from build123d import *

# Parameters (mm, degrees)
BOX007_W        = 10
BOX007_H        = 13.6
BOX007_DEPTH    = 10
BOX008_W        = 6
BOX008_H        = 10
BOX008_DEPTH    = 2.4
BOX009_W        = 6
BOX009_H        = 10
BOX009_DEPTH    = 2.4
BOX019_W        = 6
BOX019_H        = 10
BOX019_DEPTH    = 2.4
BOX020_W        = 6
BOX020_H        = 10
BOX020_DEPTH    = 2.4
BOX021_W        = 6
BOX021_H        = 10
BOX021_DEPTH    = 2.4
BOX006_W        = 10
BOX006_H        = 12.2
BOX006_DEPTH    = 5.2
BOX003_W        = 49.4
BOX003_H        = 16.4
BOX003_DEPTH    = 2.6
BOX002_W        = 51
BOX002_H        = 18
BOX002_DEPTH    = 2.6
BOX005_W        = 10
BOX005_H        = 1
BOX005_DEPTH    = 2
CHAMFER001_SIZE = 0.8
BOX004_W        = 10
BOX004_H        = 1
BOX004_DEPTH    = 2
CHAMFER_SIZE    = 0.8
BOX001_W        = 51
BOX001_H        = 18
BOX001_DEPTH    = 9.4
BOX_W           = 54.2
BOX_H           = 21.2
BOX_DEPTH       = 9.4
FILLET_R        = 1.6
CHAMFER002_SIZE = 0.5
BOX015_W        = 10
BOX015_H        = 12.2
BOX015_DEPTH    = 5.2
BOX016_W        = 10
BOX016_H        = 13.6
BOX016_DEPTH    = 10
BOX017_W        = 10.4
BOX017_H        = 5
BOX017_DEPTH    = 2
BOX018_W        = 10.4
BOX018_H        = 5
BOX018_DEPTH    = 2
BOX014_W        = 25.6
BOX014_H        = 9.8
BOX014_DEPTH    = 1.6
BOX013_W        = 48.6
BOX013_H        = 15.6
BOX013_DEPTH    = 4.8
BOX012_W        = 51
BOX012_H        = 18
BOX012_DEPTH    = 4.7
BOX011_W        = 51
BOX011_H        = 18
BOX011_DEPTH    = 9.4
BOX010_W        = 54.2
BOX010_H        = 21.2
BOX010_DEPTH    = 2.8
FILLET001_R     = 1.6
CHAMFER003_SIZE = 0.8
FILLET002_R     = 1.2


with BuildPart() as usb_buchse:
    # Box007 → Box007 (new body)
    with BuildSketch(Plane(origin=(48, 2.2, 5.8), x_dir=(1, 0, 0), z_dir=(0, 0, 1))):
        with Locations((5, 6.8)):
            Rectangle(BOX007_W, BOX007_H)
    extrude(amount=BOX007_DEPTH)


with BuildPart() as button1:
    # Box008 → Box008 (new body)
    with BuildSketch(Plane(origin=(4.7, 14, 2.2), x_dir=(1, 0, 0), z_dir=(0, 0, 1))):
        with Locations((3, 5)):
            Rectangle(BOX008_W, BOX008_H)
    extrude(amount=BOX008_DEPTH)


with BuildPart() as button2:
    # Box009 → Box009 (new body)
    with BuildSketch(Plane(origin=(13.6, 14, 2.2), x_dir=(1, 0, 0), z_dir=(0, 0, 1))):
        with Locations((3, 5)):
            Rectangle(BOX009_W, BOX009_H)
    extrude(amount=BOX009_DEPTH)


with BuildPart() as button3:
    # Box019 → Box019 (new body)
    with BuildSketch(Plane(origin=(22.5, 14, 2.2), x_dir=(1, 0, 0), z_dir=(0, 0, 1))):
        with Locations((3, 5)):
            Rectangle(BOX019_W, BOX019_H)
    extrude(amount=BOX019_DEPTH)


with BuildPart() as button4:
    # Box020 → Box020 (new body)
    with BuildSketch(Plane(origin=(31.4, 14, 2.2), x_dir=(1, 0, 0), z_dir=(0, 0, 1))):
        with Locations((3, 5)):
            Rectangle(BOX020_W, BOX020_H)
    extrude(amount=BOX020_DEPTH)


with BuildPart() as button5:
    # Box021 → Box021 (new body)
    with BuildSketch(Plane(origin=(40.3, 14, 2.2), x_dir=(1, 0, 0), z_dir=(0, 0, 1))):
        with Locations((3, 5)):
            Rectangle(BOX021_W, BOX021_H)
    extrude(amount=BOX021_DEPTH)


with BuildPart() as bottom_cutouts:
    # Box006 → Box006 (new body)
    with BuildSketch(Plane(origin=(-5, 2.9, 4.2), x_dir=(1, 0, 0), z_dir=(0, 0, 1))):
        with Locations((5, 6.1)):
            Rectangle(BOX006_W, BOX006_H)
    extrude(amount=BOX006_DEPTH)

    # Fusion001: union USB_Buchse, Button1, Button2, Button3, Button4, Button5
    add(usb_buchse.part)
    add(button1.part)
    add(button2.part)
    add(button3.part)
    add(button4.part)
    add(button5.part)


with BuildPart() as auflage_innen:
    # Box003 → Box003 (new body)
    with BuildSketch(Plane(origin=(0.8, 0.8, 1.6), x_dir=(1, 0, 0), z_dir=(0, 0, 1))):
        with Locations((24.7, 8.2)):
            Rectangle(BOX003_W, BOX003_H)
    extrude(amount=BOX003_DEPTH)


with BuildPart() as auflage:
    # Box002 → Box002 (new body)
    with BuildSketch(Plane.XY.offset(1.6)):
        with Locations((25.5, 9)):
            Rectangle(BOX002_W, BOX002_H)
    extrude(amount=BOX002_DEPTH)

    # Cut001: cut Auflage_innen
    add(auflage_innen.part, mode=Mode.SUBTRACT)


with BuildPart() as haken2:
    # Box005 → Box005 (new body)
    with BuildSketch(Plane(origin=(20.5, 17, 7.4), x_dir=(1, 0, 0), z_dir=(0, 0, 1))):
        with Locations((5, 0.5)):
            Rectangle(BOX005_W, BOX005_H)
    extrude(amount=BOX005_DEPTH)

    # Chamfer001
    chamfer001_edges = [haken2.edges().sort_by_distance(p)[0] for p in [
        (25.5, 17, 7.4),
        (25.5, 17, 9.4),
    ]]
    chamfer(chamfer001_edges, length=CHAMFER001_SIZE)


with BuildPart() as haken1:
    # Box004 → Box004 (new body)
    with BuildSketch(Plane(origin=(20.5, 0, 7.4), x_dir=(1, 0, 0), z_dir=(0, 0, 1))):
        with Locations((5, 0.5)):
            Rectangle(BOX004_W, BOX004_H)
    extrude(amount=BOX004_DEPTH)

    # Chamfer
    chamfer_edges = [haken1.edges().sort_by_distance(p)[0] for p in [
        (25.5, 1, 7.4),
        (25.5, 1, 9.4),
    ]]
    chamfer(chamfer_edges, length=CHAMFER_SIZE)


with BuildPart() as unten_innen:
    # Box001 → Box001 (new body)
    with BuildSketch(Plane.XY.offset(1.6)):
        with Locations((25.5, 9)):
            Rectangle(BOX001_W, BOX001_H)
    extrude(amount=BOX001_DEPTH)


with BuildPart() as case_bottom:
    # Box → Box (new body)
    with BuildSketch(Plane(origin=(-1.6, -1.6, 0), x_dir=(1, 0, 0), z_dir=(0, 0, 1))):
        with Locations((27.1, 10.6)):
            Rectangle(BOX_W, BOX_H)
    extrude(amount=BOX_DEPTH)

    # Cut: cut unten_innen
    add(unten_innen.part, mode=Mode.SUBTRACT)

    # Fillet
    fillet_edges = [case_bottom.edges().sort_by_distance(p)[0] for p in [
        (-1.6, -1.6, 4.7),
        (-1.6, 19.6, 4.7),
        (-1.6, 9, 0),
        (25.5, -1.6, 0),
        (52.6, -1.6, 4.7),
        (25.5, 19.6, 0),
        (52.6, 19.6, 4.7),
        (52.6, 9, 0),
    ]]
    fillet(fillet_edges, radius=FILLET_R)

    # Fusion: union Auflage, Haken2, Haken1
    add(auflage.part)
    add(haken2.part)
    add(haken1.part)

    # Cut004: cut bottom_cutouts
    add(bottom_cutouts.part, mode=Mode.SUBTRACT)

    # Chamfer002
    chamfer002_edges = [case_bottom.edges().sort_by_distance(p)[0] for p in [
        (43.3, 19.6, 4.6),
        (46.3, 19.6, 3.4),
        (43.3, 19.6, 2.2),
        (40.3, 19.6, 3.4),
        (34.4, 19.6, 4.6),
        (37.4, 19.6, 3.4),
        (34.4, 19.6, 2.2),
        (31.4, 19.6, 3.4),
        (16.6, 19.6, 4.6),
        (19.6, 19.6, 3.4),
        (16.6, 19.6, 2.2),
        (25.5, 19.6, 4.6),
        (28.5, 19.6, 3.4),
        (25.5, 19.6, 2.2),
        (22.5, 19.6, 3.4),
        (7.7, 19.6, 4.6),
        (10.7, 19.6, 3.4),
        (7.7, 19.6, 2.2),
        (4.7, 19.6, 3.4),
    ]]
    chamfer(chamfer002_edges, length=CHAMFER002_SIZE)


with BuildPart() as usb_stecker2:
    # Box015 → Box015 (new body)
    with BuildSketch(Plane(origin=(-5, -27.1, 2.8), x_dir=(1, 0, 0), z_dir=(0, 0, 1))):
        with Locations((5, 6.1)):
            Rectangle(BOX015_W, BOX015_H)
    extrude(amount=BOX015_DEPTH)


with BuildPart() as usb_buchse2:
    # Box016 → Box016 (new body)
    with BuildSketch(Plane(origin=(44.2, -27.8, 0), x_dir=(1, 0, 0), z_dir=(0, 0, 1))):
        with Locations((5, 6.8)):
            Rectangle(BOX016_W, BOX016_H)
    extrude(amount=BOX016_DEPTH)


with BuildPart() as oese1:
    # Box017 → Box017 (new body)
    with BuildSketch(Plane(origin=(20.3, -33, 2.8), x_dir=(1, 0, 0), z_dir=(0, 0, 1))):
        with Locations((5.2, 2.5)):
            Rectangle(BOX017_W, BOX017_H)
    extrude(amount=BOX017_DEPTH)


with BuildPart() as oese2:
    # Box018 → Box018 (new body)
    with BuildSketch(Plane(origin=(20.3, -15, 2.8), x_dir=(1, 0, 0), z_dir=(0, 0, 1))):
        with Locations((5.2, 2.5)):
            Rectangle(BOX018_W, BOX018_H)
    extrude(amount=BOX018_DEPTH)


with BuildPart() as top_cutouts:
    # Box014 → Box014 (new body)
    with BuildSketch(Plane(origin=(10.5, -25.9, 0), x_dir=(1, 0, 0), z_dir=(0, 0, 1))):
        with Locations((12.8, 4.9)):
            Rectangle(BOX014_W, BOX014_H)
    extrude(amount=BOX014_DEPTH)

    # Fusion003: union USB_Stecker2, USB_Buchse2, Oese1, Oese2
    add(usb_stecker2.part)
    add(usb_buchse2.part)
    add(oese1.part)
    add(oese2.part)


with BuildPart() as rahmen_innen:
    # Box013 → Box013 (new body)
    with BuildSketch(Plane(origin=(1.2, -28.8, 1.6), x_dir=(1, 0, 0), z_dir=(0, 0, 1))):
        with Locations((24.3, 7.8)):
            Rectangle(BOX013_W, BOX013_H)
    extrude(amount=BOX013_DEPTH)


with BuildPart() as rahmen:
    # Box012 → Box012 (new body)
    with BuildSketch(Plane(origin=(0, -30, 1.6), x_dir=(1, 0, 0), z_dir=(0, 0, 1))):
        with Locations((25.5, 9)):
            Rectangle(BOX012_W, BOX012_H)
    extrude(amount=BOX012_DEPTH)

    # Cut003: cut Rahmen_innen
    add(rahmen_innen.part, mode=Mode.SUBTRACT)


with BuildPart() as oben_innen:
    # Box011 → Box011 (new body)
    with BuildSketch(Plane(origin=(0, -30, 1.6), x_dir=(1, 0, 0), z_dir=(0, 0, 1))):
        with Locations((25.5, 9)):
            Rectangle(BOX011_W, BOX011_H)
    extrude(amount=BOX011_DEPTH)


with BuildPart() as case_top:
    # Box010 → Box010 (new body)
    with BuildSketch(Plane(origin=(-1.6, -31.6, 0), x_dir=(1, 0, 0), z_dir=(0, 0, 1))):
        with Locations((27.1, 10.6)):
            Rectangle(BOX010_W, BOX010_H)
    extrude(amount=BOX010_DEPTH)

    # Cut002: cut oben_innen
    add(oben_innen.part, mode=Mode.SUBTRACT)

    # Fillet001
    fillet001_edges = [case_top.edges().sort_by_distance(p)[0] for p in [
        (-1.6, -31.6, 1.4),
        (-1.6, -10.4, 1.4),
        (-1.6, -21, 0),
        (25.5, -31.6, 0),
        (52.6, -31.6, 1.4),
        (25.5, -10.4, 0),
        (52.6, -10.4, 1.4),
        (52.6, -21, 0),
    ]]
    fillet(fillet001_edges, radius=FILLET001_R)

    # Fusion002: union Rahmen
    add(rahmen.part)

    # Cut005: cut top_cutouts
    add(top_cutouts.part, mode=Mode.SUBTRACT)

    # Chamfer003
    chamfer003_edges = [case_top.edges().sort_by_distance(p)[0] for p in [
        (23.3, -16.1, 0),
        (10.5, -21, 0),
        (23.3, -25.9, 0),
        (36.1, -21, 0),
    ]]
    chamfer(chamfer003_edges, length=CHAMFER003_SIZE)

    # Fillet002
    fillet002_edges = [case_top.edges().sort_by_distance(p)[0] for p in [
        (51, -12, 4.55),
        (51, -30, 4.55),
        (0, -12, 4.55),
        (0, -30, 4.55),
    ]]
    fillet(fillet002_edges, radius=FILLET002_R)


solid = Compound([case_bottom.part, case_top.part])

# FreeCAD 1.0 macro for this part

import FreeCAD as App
import Part
import Sketcher
from FreeCAD import Vector


def edges_at(feature, points):
    """Names of the edges that pass closest to the given points."""
    edges = feature.Shape.Edges
    near = lambda p: min(range(len(edges)), key=lambda i: edges[i].distToShape(Part.Vertex(*p))[0])
    return sorted({f"Edge{near(p) + 1}" for p in points})

doc = App.newDocument("Part")
body = doc.addObject("PartDesign::Body", "Body")

sketch1 = body.newObject("Sketcher::SketchObject", "Sketch")
sketch1.AttachmentSupport = (doc.getObject("XY_Plane"), [""])
sketch1.MapMode = "FlatFace"
sketch1.AttachmentOffset = App.Placement(Vector(0, 0, 5.8), App.Rotation())
sketch1.addGeometry([
    Part.LineSegment(Vector(48, 15.8, 0), Vector(48, 2.2, 0)),
    Part.LineSegment(Vector(48, 2.2, 0), Vector(58, 2.2, 0)),
    Part.LineSegment(Vector(58, 2.2, 0), Vector(58, 15.8, 0)),
    Part.LineSegment(Vector(58, 15.8, 0), Vector(48, 15.8, 0)),
], False)
sketch1.addConstraint([
    Sketcher.Constraint("Coincident", 0, 2, 1, 1),
    Sketcher.Constraint("Coincident", 1, 2, 2, 1),
    Sketcher.Constraint("Coincident", 2, 2, 3, 1),
    Sketcher.Constraint("Coincident", 3, 2, 0, 1),
    Sketcher.Constraint("Vertical", 0),
    Sketcher.Constraint("Horizontal", 1),
    Sketcher.Constraint("Vertical", 2),
    Sketcher.Constraint("Horizontal", 3),
    Sketcher.Constraint("DistanceX", 1, 1, 1, 2, 10.0),
    Sketcher.Constraint("DistanceY", 0, 2, 0, 1, 13.6),
    Sketcher.Constraint("DistanceX", -1, 1, 0, 2, 48.0),
    Sketcher.Constraint("DistanceY", -1, 1, 0, 2, 2.2),
])
pad1 = body.newObject("PartDesign::Pad", "Pad")
pad1.Profile = sketch1
pad1.Length = 10
body2 = doc.addObject("PartDesign::Body", "Body001")

sketch2 = body2.newObject("Sketcher::SketchObject", "Sketch001")
sketch2.AttachmentSupport = (doc.getObject("XY_Plane001"), [""])
sketch2.MapMode = "FlatFace"
sketch2.AttachmentOffset = App.Placement(Vector(0, 0, 2.2), App.Rotation())
sketch2.addGeometry([
    Part.LineSegment(Vector(4.7, 24, 0), Vector(4.7, 14, 0)),
    Part.LineSegment(Vector(4.7, 14, 0), Vector(10.7, 14, 0)),
    Part.LineSegment(Vector(10.7, 14, 0), Vector(10.7, 24, 0)),
    Part.LineSegment(Vector(10.7, 24, 0), Vector(4.7, 24, 0)),
], False)
sketch2.addConstraint([
    Sketcher.Constraint("Coincident", 0, 2, 1, 1),
    Sketcher.Constraint("Coincident", 1, 2, 2, 1),
    Sketcher.Constraint("Coincident", 2, 2, 3, 1),
    Sketcher.Constraint("Coincident", 3, 2, 0, 1),
    Sketcher.Constraint("Vertical", 0),
    Sketcher.Constraint("Horizontal", 1),
    Sketcher.Constraint("Vertical", 2),
    Sketcher.Constraint("Horizontal", 3),
    Sketcher.Constraint("DistanceX", 1, 1, 1, 2, 6.0),
    Sketcher.Constraint("DistanceY", 0, 2, 0, 1, 10.0),
    Sketcher.Constraint("DistanceY", -1, 1, 0, 2, 14.0),
    Sketcher.Constraint("DistanceX", -1, 1, 0, 2, 4.7),
])
pad2 = body2.newObject("PartDesign::Pad", "Pad001")
pad2.Profile = sketch2
pad2.Length = 2.4
body3 = doc.addObject("PartDesign::Body", "Body002")

sketch3 = body3.newObject("Sketcher::SketchObject", "Sketch002")
sketch3.AttachmentSupport = (doc.getObject("XY_Plane002"), [""])
sketch3.MapMode = "FlatFace"
sketch3.AttachmentOffset = App.Placement(Vector(0, 0, 2.2), App.Rotation())
sketch3.addGeometry([
    Part.LineSegment(Vector(13.6, 24, 0), Vector(13.6, 14, 0)),
    Part.LineSegment(Vector(13.6, 14, 0), Vector(19.6, 14, 0)),
    Part.LineSegment(Vector(19.6, 14, 0), Vector(19.6, 24, 0)),
    Part.LineSegment(Vector(19.6, 24, 0), Vector(13.6, 24, 0)),
], False)
sketch3.addConstraint([
    Sketcher.Constraint("Coincident", 0, 2, 1, 1),
    Sketcher.Constraint("Coincident", 1, 2, 2, 1),
    Sketcher.Constraint("Coincident", 2, 2, 3, 1),
    Sketcher.Constraint("Coincident", 3, 2, 0, 1),
    Sketcher.Constraint("Vertical", 0),
    Sketcher.Constraint("Horizontal", 1),
    Sketcher.Constraint("Vertical", 2),
    Sketcher.Constraint("Horizontal", 3),
    Sketcher.Constraint("DistanceX", 1, 1, 1, 2, 6.0),
    Sketcher.Constraint("DistanceY", 0, 2, 0, 1, 10.0),
    Sketcher.Constraint("DistanceY", -1, 1, 0, 2, 14.0),
    Sketcher.Constraint("DistanceX", -1, 1, 0, 2, 13.6),
])
pad3 = body3.newObject("PartDesign::Pad", "Pad002")
pad3.Profile = sketch3
pad3.Length = 2.4
body4 = doc.addObject("PartDesign::Body", "Body003")

sketch4 = body4.newObject("Sketcher::SketchObject", "Sketch003")
sketch4.AttachmentSupport = (doc.getObject("XY_Plane003"), [""])
sketch4.MapMode = "FlatFace"
sketch4.AttachmentOffset = App.Placement(Vector(0, 0, 2.2), App.Rotation())
sketch4.addGeometry([
    Part.LineSegment(Vector(22.5, 24, 0), Vector(22.5, 14, 0)),
    Part.LineSegment(Vector(22.5, 14, 0), Vector(28.5, 14, 0)),
    Part.LineSegment(Vector(28.5, 14, 0), Vector(28.5, 24, 0)),
    Part.LineSegment(Vector(28.5, 24, 0), Vector(22.5, 24, 0)),
], False)
sketch4.addConstraint([
    Sketcher.Constraint("Coincident", 0, 2, 1, 1),
    Sketcher.Constraint("Coincident", 1, 2, 2, 1),
    Sketcher.Constraint("Coincident", 2, 2, 3, 1),
    Sketcher.Constraint("Coincident", 3, 2, 0, 1),
    Sketcher.Constraint("Vertical", 0),
    Sketcher.Constraint("Horizontal", 1),
    Sketcher.Constraint("Vertical", 2),
    Sketcher.Constraint("Horizontal", 3),
    Sketcher.Constraint("DistanceX", 1, 1, 1, 2, 6.0),
    Sketcher.Constraint("DistanceY", 0, 2, 0, 1, 10.0),
    Sketcher.Constraint("DistanceY", -1, 1, 0, 2, 14.0),
    Sketcher.Constraint("DistanceX", -1, 1, 0, 2, 22.5),
])
pad4 = body4.newObject("PartDesign::Pad", "Pad003")
pad4.Profile = sketch4
pad4.Length = 2.4
body5 = doc.addObject("PartDesign::Body", "Body004")

sketch5 = body5.newObject("Sketcher::SketchObject", "Sketch004")
sketch5.AttachmentSupport = (doc.getObject("XY_Plane004"), [""])
sketch5.MapMode = "FlatFace"
sketch5.AttachmentOffset = App.Placement(Vector(0, 0, 2.2), App.Rotation())
sketch5.addGeometry([
    Part.LineSegment(Vector(31.4, 24, 0), Vector(31.4, 14, 0)),
    Part.LineSegment(Vector(31.4, 14, 0), Vector(37.4, 14, 0)),
    Part.LineSegment(Vector(37.4, 14, 0), Vector(37.4, 24, 0)),
    Part.LineSegment(Vector(37.4, 24, 0), Vector(31.4, 24, 0)),
], False)
sketch5.addConstraint([
    Sketcher.Constraint("Coincident", 0, 2, 1, 1),
    Sketcher.Constraint("Coincident", 1, 2, 2, 1),
    Sketcher.Constraint("Coincident", 2, 2, 3, 1),
    Sketcher.Constraint("Coincident", 3, 2, 0, 1),
    Sketcher.Constraint("Vertical", 0),
    Sketcher.Constraint("Horizontal", 1),
    Sketcher.Constraint("Vertical", 2),
    Sketcher.Constraint("Horizontal", 3),
    Sketcher.Constraint("DistanceX", 1, 1, 1, 2, 6.0),
    Sketcher.Constraint("DistanceY", 0, 2, 0, 1, 10.0),
    Sketcher.Constraint("DistanceY", -1, 1, 0, 2, 14.0),
    Sketcher.Constraint("DistanceX", -1, 1, 0, 2, 31.4),
])
pad5 = body5.newObject("PartDesign::Pad", "Pad004")
pad5.Profile = sketch5
pad5.Length = 2.4
body6 = doc.addObject("PartDesign::Body", "Body005")

sketch6 = body6.newObject("Sketcher::SketchObject", "Sketch005")
sketch6.AttachmentSupport = (doc.getObject("XY_Plane005"), [""])
sketch6.MapMode = "FlatFace"
sketch6.AttachmentOffset = App.Placement(Vector(0, 0, 2.2), App.Rotation())
sketch6.addGeometry([
    Part.LineSegment(Vector(40.3, 24, 0), Vector(40.3, 14, 0)),
    Part.LineSegment(Vector(40.3, 14, 0), Vector(46.3, 14, 0)),
    Part.LineSegment(Vector(46.3, 14, 0), Vector(46.3, 24, 0)),
    Part.LineSegment(Vector(46.3, 24, 0), Vector(40.3, 24, 0)),
], False)
sketch6.addConstraint([
    Sketcher.Constraint("Coincident", 0, 2, 1, 1),
    Sketcher.Constraint("Coincident", 1, 2, 2, 1),
    Sketcher.Constraint("Coincident", 2, 2, 3, 1),
    Sketcher.Constraint("Coincident", 3, 2, 0, 1),
    Sketcher.Constraint("Vertical", 0),
    Sketcher.Constraint("Horizontal", 1),
    Sketcher.Constraint("Vertical", 2),
    Sketcher.Constraint("Horizontal", 3),
    Sketcher.Constraint("DistanceX", 1, 1, 1, 2, 6.0),
    Sketcher.Constraint("DistanceY", 0, 2, 0, 1, 10.0),
    Sketcher.Constraint("DistanceY", -1, 1, 0, 2, 14.0),
    Sketcher.Constraint("DistanceX", -1, 1, 0, 2, 40.3),
])
pad6 = body6.newObject("PartDesign::Pad", "Pad005")
pad6.Profile = sketch6
pad6.Length = 2.4
body7 = doc.addObject("PartDesign::Body", "Body006")
body7.AllowCompound = True

sketch7 = body7.newObject("Sketcher::SketchObject", "Sketch006")
sketch7.AttachmentSupport = (doc.getObject("XY_Plane006"), [""])
sketch7.MapMode = "FlatFace"
sketch7.AttachmentOffset = App.Placement(Vector(0, 0, 4.2), App.Rotation())
sketch7.addGeometry([
    Part.LineSegment(Vector(-5, 15.1, 0), Vector(-5, 2.9, 0)),
    Part.LineSegment(Vector(-5, 2.9, 0), Vector(5, 2.9, 0)),
    Part.LineSegment(Vector(5, 2.9, 0), Vector(5, 15.1, 0)),
    Part.LineSegment(Vector(5, 15.1, 0), Vector(-5, 15.1, 0)),
], False)
sketch7.addConstraint([
    Sketcher.Constraint("Coincident", 0, 2, 1, 1),
    Sketcher.Constraint("Coincident", 1, 2, 2, 1),
    Sketcher.Constraint("Coincident", 2, 2, 3, 1),
    Sketcher.Constraint("Coincident", 3, 2, 0, 1),
    Sketcher.Constraint("Vertical", 0),
    Sketcher.Constraint("Horizontal", 1),
    Sketcher.Constraint("Vertical", 2),
    Sketcher.Constraint("Horizontal", 3),
    Sketcher.Constraint("DistanceX", 1, 1, 1, 2, 10.0),
    Sketcher.Constraint("DistanceY", 0, 2, 0, 1, 12.2),
    Sketcher.Constraint("DistanceX", 0, 2, -1, 1, 5.0),
    Sketcher.Constraint("DistanceY", -1, 1, 0, 2, 2.9),
])
pad7 = body7.newObject("PartDesign::Pad", "Pad006")
pad7.Profile = sketch7
pad7.Length = 5.2
doc.recompute()

boolean = body7.newObject("PartDesign::Boolean", "Boolean")
boolean.Type = "Fuse"
boolean.addObjects([body])
doc.recompute()

boolean2 = body7.newObject("PartDesign::Boolean", "Boolean001")
boolean2.Type = "Fuse"
boolean2.addObjects([body2])
doc.recompute()

boolean3 = body7.newObject("PartDesign::Boolean", "Boolean002")
boolean3.Type = "Fuse"
boolean3.addObjects([body3])
doc.recompute()

boolean4 = body7.newObject("PartDesign::Boolean", "Boolean003")
boolean4.Type = "Fuse"
boolean4.addObjects([body4])
doc.recompute()

boolean5 = body7.newObject("PartDesign::Boolean", "Boolean004")
boolean5.Type = "Fuse"
boolean5.addObjects([body5])
doc.recompute()

boolean6 = body7.newObject("PartDesign::Boolean", "Boolean005")
boolean6.Type = "Fuse"
boolean6.addObjects([body6])
body8 = doc.addObject("PartDesign::Body", "Body007")

sketch8 = body8.newObject("Sketcher::SketchObject", "Sketch007")
sketch8.AttachmentSupport = (doc.getObject("XY_Plane007"), [""])
sketch8.MapMode = "FlatFace"
sketch8.AttachmentOffset = App.Placement(Vector(0, 0, 1.6), App.Rotation())
sketch8.addGeometry([
    Part.LineSegment(Vector(0.8, 17.2, 0), Vector(0.8, 0.8, 0)),
    Part.LineSegment(Vector(0.8, 0.8, 0), Vector(50.2, 0.8, 0)),
    Part.LineSegment(Vector(50.2, 0.8, 0), Vector(50.2, 17.2, 0)),
    Part.LineSegment(Vector(50.2, 17.2, 0), Vector(0.8, 17.2, 0)),
], False)
sketch8.addConstraint([
    Sketcher.Constraint("Coincident", 0, 2, 1, 1),
    Sketcher.Constraint("Coincident", 1, 2, 2, 1),
    Sketcher.Constraint("Coincident", 2, 2, 3, 1),
    Sketcher.Constraint("Coincident", 3, 2, 0, 1),
    Sketcher.Constraint("Vertical", 0),
    Sketcher.Constraint("Horizontal", 1),
    Sketcher.Constraint("Vertical", 2),
    Sketcher.Constraint("Horizontal", 3),
    Sketcher.Constraint("DistanceX", 1, 1, 1, 2, 49.4),
    Sketcher.Constraint("DistanceY", 0, 2, 0, 1, 16.4),
    Sketcher.Constraint("DistanceX", -1, 1, 0, 2, 0.8),
    Sketcher.Constraint("DistanceY", -1, 1, 0, 2, 0.8),
])
pad8 = body8.newObject("PartDesign::Pad", "Pad007")
pad8.Profile = sketch8
pad8.Length = 2.6
body9 = doc.addObject("PartDesign::Body", "Body008")

sketch9 = body9.newObject("Sketcher::SketchObject", "Sketch008")
sketch9.AttachmentSupport = (doc.getObject("XY_Plane008"), [""])
sketch9.MapMode = "FlatFace"
sketch9.AttachmentOffset = App.Placement(Vector(0, 0, 1.6), App.Rotation())
sketch9.addGeometry([
    Part.LineSegment(Vector(0, 18, 0), Vector(0, 0, 0)),
    Part.LineSegment(Vector(0, 0, 0), Vector(51, 0, 0)),
    Part.LineSegment(Vector(51, 0, 0), Vector(51, 18, 0)),
    Part.LineSegment(Vector(51, 18, 0), Vector(0, 18, 0)),
], False)
sketch9.addConstraint([
    Sketcher.Constraint("Coincident", 0, 2, 1, 1),
    Sketcher.Constraint("Coincident", 1, 2, 2, 1),
    Sketcher.Constraint("Coincident", 2, 2, 3, 1),
    Sketcher.Constraint("Coincident", 3, 2, 0, 1),
    Sketcher.Constraint("Vertical", 0),
    Sketcher.Constraint("Horizontal", 1),
    Sketcher.Constraint("Vertical", 2),
    Sketcher.Constraint("Horizontal", 3),
    Sketcher.Constraint("Coincident", 0, 2, -1, 1),
    Sketcher.Constraint("DistanceX", 1, 1, 1, 2, 51.0),
    Sketcher.Constraint("DistanceY", 0, 2, 0, 1, 18.0),
])
pad9 = body9.newObject("PartDesign::Pad", "Pad008")
pad9.Profile = sketch9
pad9.Length = 2.6
doc.recompute()

boolean7 = body9.newObject("PartDesign::Boolean", "Boolean006")
boolean7.Type = "Cut"
boolean7.addObjects([body8])
body10 = doc.addObject("PartDesign::Body", "Body009")

sketch10 = body10.newObject("Sketcher::SketchObject", "Sketch009")
sketch10.AttachmentSupport = (doc.getObject("XY_Plane009"), [""])
sketch10.MapMode = "FlatFace"
sketch10.AttachmentOffset = App.Placement(Vector(0, 0, 7.4), App.Rotation())
sketch10.addGeometry([
    Part.LineSegment(Vector(20.5, 18, 0), Vector(20.5, 17, 0)),
    Part.LineSegment(Vector(20.5, 17, 0), Vector(30.5, 17, 0)),
    Part.LineSegment(Vector(30.5, 17, 0), Vector(30.5, 18, 0)),
    Part.LineSegment(Vector(30.5, 18, 0), Vector(20.5, 18, 0)),
], False)
sketch10.addConstraint([
    Sketcher.Constraint("Coincident", 0, 2, 1, 1),
    Sketcher.Constraint("Coincident", 1, 2, 2, 1),
    Sketcher.Constraint("Coincident", 2, 2, 3, 1),
    Sketcher.Constraint("Coincident", 3, 2, 0, 1),
    Sketcher.Constraint("Vertical", 0),
    Sketcher.Constraint("Horizontal", 1),
    Sketcher.Constraint("Vertical", 2),
    Sketcher.Constraint("Horizontal", 3),
    Sketcher.Constraint("DistanceX", 1, 1, 1, 2, 10.0),
    Sketcher.Constraint("DistanceY", 0, 2, 0, 1, 1.0),
    Sketcher.Constraint("DistanceY", -1, 1, 0, 2, 17.0),
    Sketcher.Constraint("DistanceX", -1, 1, 0, 2, 20.5),
])
pad10 = body10.newObject("PartDesign::Pad", "Pad009")
pad10.Profile = sketch10
pad10.Length = 2
doc.recompute()

chamfer = body10.newObject("PartDesign::Chamfer", "Chamfer")
chamfer.Base = (pad10, edges_at(pad10, [(25.5, 17, 7.4), (25.5, 17, 9.4)]))
chamfer.Size = 0.8
body11 = doc.addObject("PartDesign::Body", "Body010")

sketch11 = body11.newObject("Sketcher::SketchObject", "Sketch010")
sketch11.AttachmentSupport = (doc.getObject("XY_Plane010"), [""])
sketch11.MapMode = "FlatFace"
sketch11.AttachmentOffset = App.Placement(Vector(0, 0, 7.4), App.Rotation())
sketch11.addGeometry([
    Part.LineSegment(Vector(20.5, 1, 0), Vector(20.5, 0, 0)),
    Part.LineSegment(Vector(20.5, 0, 0), Vector(30.5, 0, 0)),
    Part.LineSegment(Vector(30.5, 0, 0), Vector(30.5, 1, 0)),
    Part.LineSegment(Vector(30.5, 1, 0), Vector(20.5, 1, 0)),
], False)
sketch11.addConstraint([
    Sketcher.Constraint("Coincident", 0, 2, 1, 1),
    Sketcher.Constraint("Coincident", 1, 2, 2, 1),
    Sketcher.Constraint("Coincident", 2, 2, 3, 1),
    Sketcher.Constraint("Coincident", 3, 2, 0, 1),
    Sketcher.Constraint("Vertical", 0),
    Sketcher.Constraint("Horizontal", 1),
    Sketcher.Constraint("Vertical", 2),
    Sketcher.Constraint("Horizontal", 3),
    Sketcher.Constraint("PointOnObject", 0, 2, -1),
    Sketcher.Constraint("DistanceX", 1, 1, 1, 2, 10.0),
    Sketcher.Constraint("DistanceY", 0, 2, 0, 1, 1.0),
    Sketcher.Constraint("DistanceX", -1, 1, 0, 2, 20.5),
])
pad11 = body11.newObject("PartDesign::Pad", "Pad010")
pad11.Profile = sketch11
pad11.Length = 2
doc.recompute()

chamfer2 = body11.newObject("PartDesign::Chamfer", "Chamfer001")
chamfer2.Base = (pad11, edges_at(pad11, [(25.5, 1, 7.4), (25.5, 1, 9.4)]))
chamfer2.Size = 0.8
body12 = doc.addObject("PartDesign::Body", "Body011")

sketch12 = body12.newObject("Sketcher::SketchObject", "Sketch011")
sketch12.AttachmentSupport = (doc.getObject("XY_Plane011"), [""])
sketch12.MapMode = "FlatFace"
sketch12.AttachmentOffset = App.Placement(Vector(0, 0, 1.6), App.Rotation())
sketch12.addGeometry([
    Part.LineSegment(Vector(0, 18, 0), Vector(0, 0, 0)),
    Part.LineSegment(Vector(0, 0, 0), Vector(51, 0, 0)),
    Part.LineSegment(Vector(51, 0, 0), Vector(51, 18, 0)),
    Part.LineSegment(Vector(51, 18, 0), Vector(0, 18, 0)),
], False)
sketch12.addConstraint([
    Sketcher.Constraint("Coincident", 0, 2, 1, 1),
    Sketcher.Constraint("Coincident", 1, 2, 2, 1),
    Sketcher.Constraint("Coincident", 2, 2, 3, 1),
    Sketcher.Constraint("Coincident", 3, 2, 0, 1),
    Sketcher.Constraint("Vertical", 0),
    Sketcher.Constraint("Horizontal", 1),
    Sketcher.Constraint("Vertical", 2),
    Sketcher.Constraint("Horizontal", 3),
    Sketcher.Constraint("Coincident", 0, 2, -1, 1),
    Sketcher.Constraint("DistanceX", 1, 1, 1, 2, 51.0),
    Sketcher.Constraint("DistanceY", 0, 2, 0, 1, 18.0),
])
pad12 = body12.newObject("PartDesign::Pad", "Pad011")
pad12.Profile = sketch12
pad12.Length = 9.4
body13 = doc.addObject("PartDesign::Body", "Body012")

sketch13 = body13.newObject("Sketcher::SketchObject", "Sketch012")
sketch13.AttachmentSupport = (doc.getObject("XY_Plane012"), [""])
sketch13.MapMode = "FlatFace"
sketch13.addGeometry([
    Part.LineSegment(Vector(-1.6, 19.6, 0), Vector(-1.6, -1.6, 0)),
    Part.LineSegment(Vector(-1.6, -1.6, 0), Vector(52.6, -1.6, 0)),
    Part.LineSegment(Vector(52.6, -1.6, 0), Vector(52.6, 19.6, 0)),
    Part.LineSegment(Vector(52.6, 19.6, 0), Vector(-1.6, 19.6, 0)),
], False)
sketch13.addConstraint([
    Sketcher.Constraint("Coincident", 0, 2, 1, 1),
    Sketcher.Constraint("Coincident", 1, 2, 2, 1),
    Sketcher.Constraint("Coincident", 2, 2, 3, 1),
    Sketcher.Constraint("Coincident", 3, 2, 0, 1),
    Sketcher.Constraint("Vertical", 0),
    Sketcher.Constraint("Horizontal", 1),
    Sketcher.Constraint("Vertical", 2),
    Sketcher.Constraint("Horizontal", 3),
    Sketcher.Constraint("DistanceX", 1, 1, 1, 2, 54.2),
    Sketcher.Constraint("DistanceY", 0, 2, 0, 1, 21.2),
    Sketcher.Constraint("DistanceX", 0, 2, -1, 1, 1.6),
    Sketcher.Constraint("DistanceY", 0, 2, -1, 1, 1.6),
])
pad13 = body13.newObject("PartDesign::Pad", "Pad012")
pad13.Profile = sketch13
pad13.Length = 9.4
doc.recompute()

boolean8 = body13.newObject("PartDesign::Boolean", "Boolean007")
boolean8.Type = "Cut"
boolean8.addObjects([body12])
doc.recompute()

fillet = body13.newObject("PartDesign::Fillet", "Fillet")
fillet.Base = (boolean8, edges_at(boolean8, [
    (-1.6, -1.6, 4.7),
    (-1.6, 19.6, 4.7),
    (-1.6, 9, 0),
    (25.5, -1.6, 0),
    (52.6, -1.6, 4.7),
    (25.5, 19.6, 0),
    (52.6, 19.6, 4.7),
    (52.6, 9, 0),
]))
fillet.Radius = 1.6
doc.recompute()

boolean9 = body13.newObject("PartDesign::Boolean", "Boolean008")
boolean9.Type = "Fuse"
boolean9.addObjects([body9])
doc.recompute()

boolean10 = body13.newObject("PartDesign::Boolean", "Boolean009")
boolean10.Type = "Fuse"
boolean10.addObjects([body10])
doc.recompute()

boolean11 = body13.newObject("PartDesign::Boolean", "Boolean010")
boolean11.Type = "Fuse"
boolean11.addObjects([body11])
doc.recompute()

boolean12 = body13.newObject("PartDesign::Boolean", "Boolean011")
boolean12.Type = "Cut"
boolean12.addObjects([body7])
doc.recompute()

chamfer3 = body13.newObject("PartDesign::Chamfer", "Chamfer002")
chamfer3.Base = (boolean12, edges_at(boolean12, [
    (43.3, 19.6, 4.6),
    (46.3, 19.6, 3.4),
    (43.3, 19.6, 2.2),
    (40.3, 19.6, 3.4),
    (34.4, 19.6, 4.6),
    (37.4, 19.6, 3.4),
    (34.4, 19.6, 2.2),
    (31.4, 19.6, 3.4),
    (16.6, 19.6, 4.6),
    (19.6, 19.6, 3.4),
    (16.6, 19.6, 2.2),
    (25.5, 19.6, 4.6),
    (28.5, 19.6, 3.4),
    (25.5, 19.6, 2.2),
    (22.5, 19.6, 3.4),
    (7.7, 19.6, 4.6),
    (10.7, 19.6, 3.4),
    (7.7, 19.6, 2.2),
    (4.7, 19.6, 3.4),
]))
chamfer3.Size = 0.5
body14 = doc.addObject("PartDesign::Body", "Body013")

sketch14 = body14.newObject("Sketcher::SketchObject", "Sketch013")
sketch14.AttachmentSupport = (doc.getObject("XY_Plane013"), [""])
sketch14.MapMode = "FlatFace"
sketch14.AttachmentOffset = App.Placement(Vector(0, 0, 2.8), App.Rotation())
sketch14.addGeometry([
    Part.LineSegment(Vector(-5, -14.9, 0), Vector(-5, -27.1, 0)),
    Part.LineSegment(Vector(-5, -27.1, 0), Vector(5, -27.1, 0)),
    Part.LineSegment(Vector(5, -27.1, 0), Vector(5, -14.9, 0)),
    Part.LineSegment(Vector(5, -14.9, 0), Vector(-5, -14.9, 0)),
], False)
sketch14.addConstraint([
    Sketcher.Constraint("Coincident", 0, 2, 1, 1),
    Sketcher.Constraint("Coincident", 1, 2, 2, 1),
    Sketcher.Constraint("Coincident", 2, 2, 3, 1),
    Sketcher.Constraint("Coincident", 3, 2, 0, 1),
    Sketcher.Constraint("Vertical", 0),
    Sketcher.Constraint("Horizontal", 1),
    Sketcher.Constraint("Vertical", 2),
    Sketcher.Constraint("Horizontal", 3),
    Sketcher.Constraint("DistanceX", 1, 1, 1, 2, 10.0),
    Sketcher.Constraint("DistanceY", 0, 2, 0, 1, 12.2),
    Sketcher.Constraint("DistanceX", 0, 2, -1, 1, 5.0),
    Sketcher.Constraint("DistanceY", 0, 2, -1, 1, 27.1),
])
pad14 = body14.newObject("PartDesign::Pad", "Pad013")
pad14.Profile = sketch14
pad14.Length = 5.2
body15 = doc.addObject("PartDesign::Body", "Body014")

sketch15 = body15.newObject("Sketcher::SketchObject", "Sketch014")
sketch15.AttachmentSupport = (doc.getObject("XY_Plane014"), [""])
sketch15.MapMode = "FlatFace"
sketch15.addGeometry([
    Part.LineSegment(Vector(44.2, -14.2, 0), Vector(44.2, -27.8, 0)),
    Part.LineSegment(Vector(44.2, -27.8, 0), Vector(54.2, -27.8, 0)),
    Part.LineSegment(Vector(54.2, -27.8, 0), Vector(54.2, -14.2, 0)),
    Part.LineSegment(Vector(54.2, -14.2, 0), Vector(44.2, -14.2, 0)),
], False)
sketch15.addConstraint([
    Sketcher.Constraint("Coincident", 0, 2, 1, 1),
    Sketcher.Constraint("Coincident", 1, 2, 2, 1),
    Sketcher.Constraint("Coincident", 2, 2, 3, 1),
    Sketcher.Constraint("Coincident", 3, 2, 0, 1),
    Sketcher.Constraint("Vertical", 0),
    Sketcher.Constraint("Horizontal", 1),
    Sketcher.Constraint("Vertical", 2),
    Sketcher.Constraint("Horizontal", 3),
    Sketcher.Constraint("DistanceX", 1, 1, 1, 2, 10.0),
    Sketcher.Constraint("DistanceY", 0, 2, 0, 1, 13.6),
    Sketcher.Constraint("DistanceX", -1, 1, 0, 2, 44.2),
    Sketcher.Constraint("DistanceY", 0, 2, -1, 1, 27.8),
])
pad15 = body15.newObject("PartDesign::Pad", "Pad014")
pad15.Profile = sketch15
pad15.Length = 10
body16 = doc.addObject("PartDesign::Body", "Body015")

sketch16 = body16.newObject("Sketcher::SketchObject", "Sketch015")
sketch16.AttachmentSupport = (doc.getObject("XY_Plane015"), [""])
sketch16.MapMode = "FlatFace"
sketch16.AttachmentOffset = App.Placement(Vector(0, 0, 2.8), App.Rotation())
sketch16.addGeometry([
    Part.LineSegment(Vector(20.3, -28, 0), Vector(20.3, -33, 0)),
    Part.LineSegment(Vector(20.3, -33, 0), Vector(30.7, -33, 0)),
    Part.LineSegment(Vector(30.7, -33, 0), Vector(30.7, -28, 0)),
    Part.LineSegment(Vector(30.7, -28, 0), Vector(20.3, -28, 0)),
], False)
sketch16.addConstraint([
    Sketcher.Constraint("Coincident", 0, 2, 1, 1),
    Sketcher.Constraint("Coincident", 1, 2, 2, 1),
    Sketcher.Constraint("Coincident", 2, 2, 3, 1),
    Sketcher.Constraint("Coincident", 3, 2, 0, 1),
    Sketcher.Constraint("Vertical", 0),
    Sketcher.Constraint("Horizontal", 1),
    Sketcher.Constraint("Vertical", 2),
    Sketcher.Constraint("Horizontal", 3),
    Sketcher.Constraint("DistanceY", 0, 2, 0, 1, 5.0),
    Sketcher.Constraint("DistanceX", 1, 1, 1, 2, 10.4),
    Sketcher.Constraint("DistanceY", 0, 2, -1, 1, 33.0),
    Sketcher.Constraint("DistanceX", -1, 1, 0, 2, 20.3),
])
pad16 = body16.newObject("PartDesign::Pad", "Pad015")
pad16.Profile = sketch16
pad16.Length = 2
body17 = doc.addObject("PartDesign::Body", "Body016")

sketch17 = body17.newObject("Sketcher::SketchObject", "Sketch016")
sketch17.AttachmentSupport = (doc.getObject("XY_Plane016"), [""])
sketch17.MapMode = "FlatFace"
sketch17.AttachmentOffset = App.Placement(Vector(0, 0, 2.8), App.Rotation())
sketch17.addGeometry([
    Part.LineSegment(Vector(20.3, -10, 0), Vector(20.3, -15, 0)),
    Part.LineSegment(Vector(20.3, -15, 0), Vector(30.7, -15, 0)),
    Part.LineSegment(Vector(30.7, -15, 0), Vector(30.7, -10, 0)),
    Part.LineSegment(Vector(30.7, -10, 0), Vector(20.3, -10, 0)),
], False)
sketch17.addConstraint([
    Sketcher.Constraint("Coincident", 0, 2, 1, 1),
    Sketcher.Constraint("Coincident", 1, 2, 2, 1),
    Sketcher.Constraint("Coincident", 2, 2, 3, 1),
    Sketcher.Constraint("Coincident", 3, 2, 0, 1),
    Sketcher.Constraint("Vertical", 0),
    Sketcher.Constraint("Horizontal", 1),
    Sketcher.Constraint("Vertical", 2),
    Sketcher.Constraint("Horizontal", 3),
    Sketcher.Constraint("DistanceY", 0, 2, 0, 1, 5.0),
    Sketcher.Constraint("DistanceX", 1, 1, 1, 2, 10.4),
    Sketcher.Constraint("DistanceY", 0, 2, -1, 1, 15.0),
    Sketcher.Constraint("DistanceX", -1, 1, 0, 2, 20.3),
])
pad17 = body17.newObject("PartDesign::Pad", "Pad016")
pad17.Profile = sketch17
pad17.Length = 2
body18 = doc.addObject("PartDesign::Body", "Body017")
body18.AllowCompound = True

sketch18 = body18.newObject("Sketcher::SketchObject", "Sketch017")
sketch18.AttachmentSupport = (doc.getObject("XY_Plane017"), [""])
sketch18.MapMode = "FlatFace"
sketch18.addGeometry([
    Part.LineSegment(Vector(10.5, -16.1, 0), Vector(10.5, -25.9, 0)),
    Part.LineSegment(Vector(10.5, -25.9, 0), Vector(36.1, -25.9, 0)),
    Part.LineSegment(Vector(36.1, -25.9, 0), Vector(36.1, -16.1, 0)),
    Part.LineSegment(Vector(36.1, -16.1, 0), Vector(10.5, -16.1, 0)),
], False)
sketch18.addConstraint([
    Sketcher.Constraint("Coincident", 0, 2, 1, 1),
    Sketcher.Constraint("Coincident", 1, 2, 2, 1),
    Sketcher.Constraint("Coincident", 2, 2, 3, 1),
    Sketcher.Constraint("Coincident", 3, 2, 0, 1),
    Sketcher.Constraint("Vertical", 0),
    Sketcher.Constraint("Horizontal", 1),
    Sketcher.Constraint("Vertical", 2),
    Sketcher.Constraint("Horizontal", 3),
    Sketcher.Constraint("DistanceX", 1, 1, 1, 2, 25.6),
    Sketcher.Constraint("DistanceY", 0, 2, 0, 1, 9.8),
    Sketcher.Constraint("DistanceX", -1, 1, 0, 2, 10.5),
    Sketcher.Constraint("DistanceY", 0, 2, -1, 1, 25.9),
])
pad18 = body18.newObject("PartDesign::Pad", "Pad017")
pad18.Profile = sketch18
pad18.Length = 1.6
doc.recompute()

boolean13 = body18.newObject("PartDesign::Boolean", "Boolean012")
boolean13.Type = "Fuse"
boolean13.addObjects([body14])
doc.recompute()

boolean14 = body18.newObject("PartDesign::Boolean", "Boolean013")
boolean14.Type = "Fuse"
boolean14.addObjects([body15])
doc.recompute()

boolean15 = body18.newObject("PartDesign::Boolean", "Boolean014")
boolean15.Type = "Fuse"
boolean15.addObjects([body16])
doc.recompute()

boolean16 = body18.newObject("PartDesign::Boolean", "Boolean015")
boolean16.Type = "Fuse"
boolean16.addObjects([body17])
body19 = doc.addObject("PartDesign::Body", "Body018")

sketch19 = body19.newObject("Sketcher::SketchObject", "Sketch018")
sketch19.AttachmentSupport = (doc.getObject("XY_Plane018"), [""])
sketch19.MapMode = "FlatFace"
sketch19.AttachmentOffset = App.Placement(Vector(0, 0, 1.6), App.Rotation())
sketch19.addGeometry([
    Part.LineSegment(Vector(1.2, -13.2, 0), Vector(1.2, -28.8, 0)),
    Part.LineSegment(Vector(1.2, -28.8, 0), Vector(49.8, -28.8, 0)),
    Part.LineSegment(Vector(49.8, -28.8, 0), Vector(49.8, -13.2, 0)),
    Part.LineSegment(Vector(49.8, -13.2, 0), Vector(1.2, -13.2, 0)),
], False)
sketch19.addConstraint([
    Sketcher.Constraint("Coincident", 0, 2, 1, 1),
    Sketcher.Constraint("Coincident", 1, 2, 2, 1),
    Sketcher.Constraint("Coincident", 2, 2, 3, 1),
    Sketcher.Constraint("Coincident", 3, 2, 0, 1),
    Sketcher.Constraint("Vertical", 0),
    Sketcher.Constraint("Horizontal", 1),
    Sketcher.Constraint("Vertical", 2),
    Sketcher.Constraint("Horizontal", 3),
    Sketcher.Constraint("DistanceX", 1, 1, 1, 2, 48.6),
    Sketcher.Constraint("DistanceY", 0, 2, 0, 1, 15.6),
    Sketcher.Constraint("DistanceX", -1, 1, 0, 2, 1.2),
    Sketcher.Constraint("DistanceY", 0, 2, -1, 1, 28.8),
])
pad19 = body19.newObject("PartDesign::Pad", "Pad018")
pad19.Profile = sketch19
pad19.Length = 4.8
body20 = doc.addObject("PartDesign::Body", "Body019")

sketch20 = body20.newObject("Sketcher::SketchObject", "Sketch019")
sketch20.AttachmentSupport = (doc.getObject("XY_Plane019"), [""])
sketch20.MapMode = "FlatFace"
sketch20.AttachmentOffset = App.Placement(Vector(0, 0, 1.6), App.Rotation())
sketch20.addGeometry([
    Part.LineSegment(Vector(0, -12, 0), Vector(0, -30, 0)),
    Part.LineSegment(Vector(0, -30, 0), Vector(51, -30, 0)),
    Part.LineSegment(Vector(51, -30, 0), Vector(51, -12, 0)),
    Part.LineSegment(Vector(51, -12, 0), Vector(0, -12, 0)),
], False)
sketch20.addConstraint([
    Sketcher.Constraint("Coincident", 0, 2, 1, 1),
    Sketcher.Constraint("Coincident", 1, 2, 2, 1),
    Sketcher.Constraint("Coincident", 2, 2, 3, 1),
    Sketcher.Constraint("Coincident", 3, 2, 0, 1),
    Sketcher.Constraint("Vertical", 0),
    Sketcher.Constraint("Horizontal", 1),
    Sketcher.Constraint("Vertical", 2),
    Sketcher.Constraint("Horizontal", 3),
    Sketcher.Constraint("PointOnObject", 0, 2, -2),
    Sketcher.Constraint("DistanceX", 1, 1, 1, 2, 51.0),
    Sketcher.Constraint("DistanceY", 0, 2, 0, 1, 18.0),
    Sketcher.Constraint("DistanceY", 0, 2, -1, 1, 30.0),
])
pad20 = body20.newObject("PartDesign::Pad", "Pad019")
pad20.Profile = sketch20
pad20.Length = 4.7
doc.recompute()

boolean17 = body20.newObject("PartDesign::Boolean", "Boolean016")
boolean17.Type = "Cut"
boolean17.addObjects([body19])
body21 = doc.addObject("PartDesign::Body", "Body020")

sketch21 = body21.newObject("Sketcher::SketchObject", "Sketch020")
sketch21.AttachmentSupport = (doc.getObject("XY_Plane020"), [""])
sketch21.MapMode = "FlatFace"
sketch21.AttachmentOffset = App.Placement(Vector(0, 0, 1.6), App.Rotation())
sketch21.addGeometry([
    Part.LineSegment(Vector(0, -12, 0), Vector(0, -30, 0)),
    Part.LineSegment(Vector(0, -30, 0), Vector(51, -30, 0)),
    Part.LineSegment(Vector(51, -30, 0), Vector(51, -12, 0)),
    Part.LineSegment(Vector(51, -12, 0), Vector(0, -12, 0)),
], False)
sketch21.addConstraint([
    Sketcher.Constraint("Coincident", 0, 2, 1, 1),
    Sketcher.Constraint("Coincident", 1, 2, 2, 1),
    Sketcher.Constraint("Coincident", 2, 2, 3, 1),
    Sketcher.Constraint("Coincident", 3, 2, 0, 1),
    Sketcher.Constraint("Vertical", 0),
    Sketcher.Constraint("Horizontal", 1),
    Sketcher.Constraint("Vertical", 2),
    Sketcher.Constraint("Horizontal", 3),
    Sketcher.Constraint("PointOnObject", 0, 2, -2),
    Sketcher.Constraint("DistanceX", 1, 1, 1, 2, 51.0),
    Sketcher.Constraint("DistanceY", 0, 2, 0, 1, 18.0),
    Sketcher.Constraint("DistanceY", 0, 2, -1, 1, 30.0),
])
pad21 = body21.newObject("PartDesign::Pad", "Pad020")
pad21.Profile = sketch21
pad21.Length = 9.4
body22 = doc.addObject("PartDesign::Body", "Body021")

sketch22 = body22.newObject("Sketcher::SketchObject", "Sketch021")
sketch22.AttachmentSupport = (doc.getObject("XY_Plane021"), [""])
sketch22.MapMode = "FlatFace"
sketch22.addGeometry([
    Part.LineSegment(Vector(-1.6, -10.4, 0), Vector(-1.6, -31.6, 0)),
    Part.LineSegment(Vector(-1.6, -31.6, 0), Vector(52.6, -31.6, 0)),
    Part.LineSegment(Vector(52.6, -31.6, 0), Vector(52.6, -10.4, 0)),
    Part.LineSegment(Vector(52.6, -10.4, 0), Vector(-1.6, -10.4, 0)),
], False)
sketch22.addConstraint([
    Sketcher.Constraint("Coincident", 0, 2, 1, 1),
    Sketcher.Constraint("Coincident", 1, 2, 2, 1),
    Sketcher.Constraint("Coincident", 2, 2, 3, 1),
    Sketcher.Constraint("Coincident", 3, 2, 0, 1),
    Sketcher.Constraint("Vertical", 0),
    Sketcher.Constraint("Horizontal", 1),
    Sketcher.Constraint("Vertical", 2),
    Sketcher.Constraint("Horizontal", 3),
    Sketcher.Constraint("DistanceX", 1, 1, 1, 2, 54.2),
    Sketcher.Constraint("DistanceY", 0, 2, 0, 1, 21.2),
    Sketcher.Constraint("DistanceX", 0, 2, -1, 1, 1.6),
    Sketcher.Constraint("DistanceY", 0, 2, -1, 1, 31.6),
])
pad22 = body22.newObject("PartDesign::Pad", "Pad021")
pad22.Profile = sketch22
pad22.Length = 2.8
doc.recompute()

boolean18 = body22.newObject("PartDesign::Boolean", "Boolean017")
boolean18.Type = "Cut"
boolean18.addObjects([body21])
doc.recompute()

fillet2 = body22.newObject("PartDesign::Fillet", "Fillet001")
fillet2.Base = (boolean18, edges_at(boolean18, [
    (-1.6, -31.6, 1.4),
    (-1.6, -10.4, 1.4),
    (-1.6, -21, 0),
    (25.5, -31.6, 0),
    (52.6, -31.6, 1.4),
    (25.5, -10.4, 0),
    (52.6, -10.4, 1.4),
    (52.6, -21, 0),
]))
fillet2.Radius = 1.6
doc.recompute()

boolean19 = body22.newObject("PartDesign::Boolean", "Boolean018")
boolean19.Type = "Fuse"
boolean19.addObjects([body20])
doc.recompute()

boolean20 = body22.newObject("PartDesign::Boolean", "Boolean019")
boolean20.Type = "Cut"
boolean20.addObjects([body18])
doc.recompute()

chamfer4 = body22.newObject("PartDesign::Chamfer", "Chamfer003")
chamfer4.Base = (boolean20, edges_at(boolean20, [
    (23.3, -16.1, 0),
    (10.5, -21, 0),
    (23.3, -25.9, 0),
    (36.1, -21, 0),
]))
chamfer4.Size = 0.8
doc.recompute()

fillet3 = body22.newObject("PartDesign::Fillet", "Fillet002")
fillet3.Base = (chamfer4, edges_at(chamfer4, [
    (51, -12, 4.55),
    (51, -30, 4.55),
    (0, -12, 4.55),
    (0, -30, 4.55),
]))
fillet3.Radius = 1.2

doc.recompute()
